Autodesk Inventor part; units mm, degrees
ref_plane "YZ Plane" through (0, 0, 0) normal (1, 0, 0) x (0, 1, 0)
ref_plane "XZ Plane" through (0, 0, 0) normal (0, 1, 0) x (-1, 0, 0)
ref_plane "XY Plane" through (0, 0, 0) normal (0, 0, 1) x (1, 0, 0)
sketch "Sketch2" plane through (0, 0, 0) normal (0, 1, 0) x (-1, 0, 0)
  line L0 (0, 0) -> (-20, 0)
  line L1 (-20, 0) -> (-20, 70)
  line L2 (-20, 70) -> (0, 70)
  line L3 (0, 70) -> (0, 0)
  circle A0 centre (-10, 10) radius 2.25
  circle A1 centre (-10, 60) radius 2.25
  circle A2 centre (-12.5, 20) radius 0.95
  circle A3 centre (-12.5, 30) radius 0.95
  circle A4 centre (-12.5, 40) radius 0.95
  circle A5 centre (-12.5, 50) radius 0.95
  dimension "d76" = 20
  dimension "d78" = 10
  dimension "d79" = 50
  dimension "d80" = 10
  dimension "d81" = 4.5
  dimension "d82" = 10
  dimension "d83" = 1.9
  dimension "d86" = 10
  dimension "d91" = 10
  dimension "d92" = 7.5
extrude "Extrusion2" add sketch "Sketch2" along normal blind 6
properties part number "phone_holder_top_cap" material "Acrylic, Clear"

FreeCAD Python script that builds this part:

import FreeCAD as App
import Part
import Sketcher

doc = App.newDocument("Part")
body = doc.addObject("PartDesign::Body", "Body")

# Sketch on XZ plane
sketch1 = body.newObject("Sketcher::SketchObject", "Sketch")
sketch1.AttachmentSupport = (doc.getObject("XZ_Plane"), [""])
sketch1.MapMode = "FlatFace"
sketch1.addGeometry([
    Part.LineSegment(App.Vector(20, 0, 0), App.Vector(0, 0, 0)),  # 0
    Part.LineSegment(App.Vector(0, 0, 0), App.Vector(0, 70, 0)),  # 1
    Part.LineSegment(App.Vector(0, 70, 0), App.Vector(20, 70, 0)),  # 2
    Part.LineSegment(App.Vector(20, 70, 0), App.Vector(20, 0, 0)),  # 3
    Part.Circle(App.Vector(12.5, 20, 0), App.Vector(0, 0, 1), 0.9),  # 4
    Part.Circle(App.Vector(12.5, 30, 0), App.Vector(0, 0, 1), 0.9),  # 5
    Part.Circle(App.Vector(10, 10, 0), App.Vector(0, 0, 1), 2.2),  # 6
    Part.Circle(App.Vector(12.5, 40, 0), App.Vector(0, 0, 1), 0.9),  # 7
    Part.Circle(App.Vector(12.5, 50, 0), App.Vector(0, 0, 1), 0.9),  # 8
    Part.Circle(App.Vector(10, 60, 0), App.Vector(0, 0, 1), 2.2),  # 9
], False)
sketch1.addConstraint([
    Sketcher.Constraint("Coincident", 0, 2, 1, 1),
    Sketcher.Constraint("Coincident", 1, 2, 2, 1),
    Sketcher.Constraint("Coincident", 2, 2, 3, 1),
    Sketcher.Constraint("Coincident", 3, 2, 0, 1),
    Sketcher.Constraint("Horizontal", 0),
    Sketcher.Constraint("Vertical", 1),
    Sketcher.Constraint("Horizontal", 2),
    Sketcher.Constraint("Vertical", 3),
    Sketcher.Constraint("Coincident", 0, 2, -1, 1),
    Sketcher.Constraint("Equal", 4, 5),
    Sketcher.Constraint("Equal", 5, 7),
    Sketcher.Constraint("Equal", 7, 8),
    Sketcher.Constraint("Equal", 6, 9),
    Sketcher.Constraint("Vertical", 4, 3, 5, 3),
    Sketcher.Constraint("Vertical", 5, 3, 7, 3),
    Sketcher.Constraint("Vertical", 7, 3, 8, 3),
    Sketcher.Constraint("Vertical", 6, 3, 9, 3),
    Sketcher.Constraint("Diameter", 4, 1.9),
    Sketcher.Constraint("Diameter", 6, 4.5),
    Sketcher.Constraint("DistanceX", 0, 2, 0, 1, 20.0),
    Sketcher.Constraint("DistanceY", -1, 1, 4, 3, 20.0),
    Sketcher.Constraint("DistanceX", -1, 1, 6, 3, 10.0),
    Sketcher.Constraint("DistanceY", -1, 1, 6, 3, 10.0),
    Sketcher.Constraint("DistanceY", -1, 1, 8, 3, 50.0),
    Sketcher.Constraint("DistanceY", 4, 3, 5, 3, 10.0),
    Sketcher.Constraint("DistanceY", 5, 3, 7, 3, 10.0),
    Sketcher.Constraint("DistanceY", 8, 3, 9, 3, 10.0),
    Sketcher.Constraint("DistanceY", 9, 3, 1, 2, 10.0),
    Sketcher.Constraint("DistanceX", 8, 3, 2, 2, 7.5),
])
pad1 = body.newObject("PartDesign::Pad", "Pad")
pad1.Profile = sketch1
pad1.Length = 6
pad1.Reversed = True

doc.recompute()
